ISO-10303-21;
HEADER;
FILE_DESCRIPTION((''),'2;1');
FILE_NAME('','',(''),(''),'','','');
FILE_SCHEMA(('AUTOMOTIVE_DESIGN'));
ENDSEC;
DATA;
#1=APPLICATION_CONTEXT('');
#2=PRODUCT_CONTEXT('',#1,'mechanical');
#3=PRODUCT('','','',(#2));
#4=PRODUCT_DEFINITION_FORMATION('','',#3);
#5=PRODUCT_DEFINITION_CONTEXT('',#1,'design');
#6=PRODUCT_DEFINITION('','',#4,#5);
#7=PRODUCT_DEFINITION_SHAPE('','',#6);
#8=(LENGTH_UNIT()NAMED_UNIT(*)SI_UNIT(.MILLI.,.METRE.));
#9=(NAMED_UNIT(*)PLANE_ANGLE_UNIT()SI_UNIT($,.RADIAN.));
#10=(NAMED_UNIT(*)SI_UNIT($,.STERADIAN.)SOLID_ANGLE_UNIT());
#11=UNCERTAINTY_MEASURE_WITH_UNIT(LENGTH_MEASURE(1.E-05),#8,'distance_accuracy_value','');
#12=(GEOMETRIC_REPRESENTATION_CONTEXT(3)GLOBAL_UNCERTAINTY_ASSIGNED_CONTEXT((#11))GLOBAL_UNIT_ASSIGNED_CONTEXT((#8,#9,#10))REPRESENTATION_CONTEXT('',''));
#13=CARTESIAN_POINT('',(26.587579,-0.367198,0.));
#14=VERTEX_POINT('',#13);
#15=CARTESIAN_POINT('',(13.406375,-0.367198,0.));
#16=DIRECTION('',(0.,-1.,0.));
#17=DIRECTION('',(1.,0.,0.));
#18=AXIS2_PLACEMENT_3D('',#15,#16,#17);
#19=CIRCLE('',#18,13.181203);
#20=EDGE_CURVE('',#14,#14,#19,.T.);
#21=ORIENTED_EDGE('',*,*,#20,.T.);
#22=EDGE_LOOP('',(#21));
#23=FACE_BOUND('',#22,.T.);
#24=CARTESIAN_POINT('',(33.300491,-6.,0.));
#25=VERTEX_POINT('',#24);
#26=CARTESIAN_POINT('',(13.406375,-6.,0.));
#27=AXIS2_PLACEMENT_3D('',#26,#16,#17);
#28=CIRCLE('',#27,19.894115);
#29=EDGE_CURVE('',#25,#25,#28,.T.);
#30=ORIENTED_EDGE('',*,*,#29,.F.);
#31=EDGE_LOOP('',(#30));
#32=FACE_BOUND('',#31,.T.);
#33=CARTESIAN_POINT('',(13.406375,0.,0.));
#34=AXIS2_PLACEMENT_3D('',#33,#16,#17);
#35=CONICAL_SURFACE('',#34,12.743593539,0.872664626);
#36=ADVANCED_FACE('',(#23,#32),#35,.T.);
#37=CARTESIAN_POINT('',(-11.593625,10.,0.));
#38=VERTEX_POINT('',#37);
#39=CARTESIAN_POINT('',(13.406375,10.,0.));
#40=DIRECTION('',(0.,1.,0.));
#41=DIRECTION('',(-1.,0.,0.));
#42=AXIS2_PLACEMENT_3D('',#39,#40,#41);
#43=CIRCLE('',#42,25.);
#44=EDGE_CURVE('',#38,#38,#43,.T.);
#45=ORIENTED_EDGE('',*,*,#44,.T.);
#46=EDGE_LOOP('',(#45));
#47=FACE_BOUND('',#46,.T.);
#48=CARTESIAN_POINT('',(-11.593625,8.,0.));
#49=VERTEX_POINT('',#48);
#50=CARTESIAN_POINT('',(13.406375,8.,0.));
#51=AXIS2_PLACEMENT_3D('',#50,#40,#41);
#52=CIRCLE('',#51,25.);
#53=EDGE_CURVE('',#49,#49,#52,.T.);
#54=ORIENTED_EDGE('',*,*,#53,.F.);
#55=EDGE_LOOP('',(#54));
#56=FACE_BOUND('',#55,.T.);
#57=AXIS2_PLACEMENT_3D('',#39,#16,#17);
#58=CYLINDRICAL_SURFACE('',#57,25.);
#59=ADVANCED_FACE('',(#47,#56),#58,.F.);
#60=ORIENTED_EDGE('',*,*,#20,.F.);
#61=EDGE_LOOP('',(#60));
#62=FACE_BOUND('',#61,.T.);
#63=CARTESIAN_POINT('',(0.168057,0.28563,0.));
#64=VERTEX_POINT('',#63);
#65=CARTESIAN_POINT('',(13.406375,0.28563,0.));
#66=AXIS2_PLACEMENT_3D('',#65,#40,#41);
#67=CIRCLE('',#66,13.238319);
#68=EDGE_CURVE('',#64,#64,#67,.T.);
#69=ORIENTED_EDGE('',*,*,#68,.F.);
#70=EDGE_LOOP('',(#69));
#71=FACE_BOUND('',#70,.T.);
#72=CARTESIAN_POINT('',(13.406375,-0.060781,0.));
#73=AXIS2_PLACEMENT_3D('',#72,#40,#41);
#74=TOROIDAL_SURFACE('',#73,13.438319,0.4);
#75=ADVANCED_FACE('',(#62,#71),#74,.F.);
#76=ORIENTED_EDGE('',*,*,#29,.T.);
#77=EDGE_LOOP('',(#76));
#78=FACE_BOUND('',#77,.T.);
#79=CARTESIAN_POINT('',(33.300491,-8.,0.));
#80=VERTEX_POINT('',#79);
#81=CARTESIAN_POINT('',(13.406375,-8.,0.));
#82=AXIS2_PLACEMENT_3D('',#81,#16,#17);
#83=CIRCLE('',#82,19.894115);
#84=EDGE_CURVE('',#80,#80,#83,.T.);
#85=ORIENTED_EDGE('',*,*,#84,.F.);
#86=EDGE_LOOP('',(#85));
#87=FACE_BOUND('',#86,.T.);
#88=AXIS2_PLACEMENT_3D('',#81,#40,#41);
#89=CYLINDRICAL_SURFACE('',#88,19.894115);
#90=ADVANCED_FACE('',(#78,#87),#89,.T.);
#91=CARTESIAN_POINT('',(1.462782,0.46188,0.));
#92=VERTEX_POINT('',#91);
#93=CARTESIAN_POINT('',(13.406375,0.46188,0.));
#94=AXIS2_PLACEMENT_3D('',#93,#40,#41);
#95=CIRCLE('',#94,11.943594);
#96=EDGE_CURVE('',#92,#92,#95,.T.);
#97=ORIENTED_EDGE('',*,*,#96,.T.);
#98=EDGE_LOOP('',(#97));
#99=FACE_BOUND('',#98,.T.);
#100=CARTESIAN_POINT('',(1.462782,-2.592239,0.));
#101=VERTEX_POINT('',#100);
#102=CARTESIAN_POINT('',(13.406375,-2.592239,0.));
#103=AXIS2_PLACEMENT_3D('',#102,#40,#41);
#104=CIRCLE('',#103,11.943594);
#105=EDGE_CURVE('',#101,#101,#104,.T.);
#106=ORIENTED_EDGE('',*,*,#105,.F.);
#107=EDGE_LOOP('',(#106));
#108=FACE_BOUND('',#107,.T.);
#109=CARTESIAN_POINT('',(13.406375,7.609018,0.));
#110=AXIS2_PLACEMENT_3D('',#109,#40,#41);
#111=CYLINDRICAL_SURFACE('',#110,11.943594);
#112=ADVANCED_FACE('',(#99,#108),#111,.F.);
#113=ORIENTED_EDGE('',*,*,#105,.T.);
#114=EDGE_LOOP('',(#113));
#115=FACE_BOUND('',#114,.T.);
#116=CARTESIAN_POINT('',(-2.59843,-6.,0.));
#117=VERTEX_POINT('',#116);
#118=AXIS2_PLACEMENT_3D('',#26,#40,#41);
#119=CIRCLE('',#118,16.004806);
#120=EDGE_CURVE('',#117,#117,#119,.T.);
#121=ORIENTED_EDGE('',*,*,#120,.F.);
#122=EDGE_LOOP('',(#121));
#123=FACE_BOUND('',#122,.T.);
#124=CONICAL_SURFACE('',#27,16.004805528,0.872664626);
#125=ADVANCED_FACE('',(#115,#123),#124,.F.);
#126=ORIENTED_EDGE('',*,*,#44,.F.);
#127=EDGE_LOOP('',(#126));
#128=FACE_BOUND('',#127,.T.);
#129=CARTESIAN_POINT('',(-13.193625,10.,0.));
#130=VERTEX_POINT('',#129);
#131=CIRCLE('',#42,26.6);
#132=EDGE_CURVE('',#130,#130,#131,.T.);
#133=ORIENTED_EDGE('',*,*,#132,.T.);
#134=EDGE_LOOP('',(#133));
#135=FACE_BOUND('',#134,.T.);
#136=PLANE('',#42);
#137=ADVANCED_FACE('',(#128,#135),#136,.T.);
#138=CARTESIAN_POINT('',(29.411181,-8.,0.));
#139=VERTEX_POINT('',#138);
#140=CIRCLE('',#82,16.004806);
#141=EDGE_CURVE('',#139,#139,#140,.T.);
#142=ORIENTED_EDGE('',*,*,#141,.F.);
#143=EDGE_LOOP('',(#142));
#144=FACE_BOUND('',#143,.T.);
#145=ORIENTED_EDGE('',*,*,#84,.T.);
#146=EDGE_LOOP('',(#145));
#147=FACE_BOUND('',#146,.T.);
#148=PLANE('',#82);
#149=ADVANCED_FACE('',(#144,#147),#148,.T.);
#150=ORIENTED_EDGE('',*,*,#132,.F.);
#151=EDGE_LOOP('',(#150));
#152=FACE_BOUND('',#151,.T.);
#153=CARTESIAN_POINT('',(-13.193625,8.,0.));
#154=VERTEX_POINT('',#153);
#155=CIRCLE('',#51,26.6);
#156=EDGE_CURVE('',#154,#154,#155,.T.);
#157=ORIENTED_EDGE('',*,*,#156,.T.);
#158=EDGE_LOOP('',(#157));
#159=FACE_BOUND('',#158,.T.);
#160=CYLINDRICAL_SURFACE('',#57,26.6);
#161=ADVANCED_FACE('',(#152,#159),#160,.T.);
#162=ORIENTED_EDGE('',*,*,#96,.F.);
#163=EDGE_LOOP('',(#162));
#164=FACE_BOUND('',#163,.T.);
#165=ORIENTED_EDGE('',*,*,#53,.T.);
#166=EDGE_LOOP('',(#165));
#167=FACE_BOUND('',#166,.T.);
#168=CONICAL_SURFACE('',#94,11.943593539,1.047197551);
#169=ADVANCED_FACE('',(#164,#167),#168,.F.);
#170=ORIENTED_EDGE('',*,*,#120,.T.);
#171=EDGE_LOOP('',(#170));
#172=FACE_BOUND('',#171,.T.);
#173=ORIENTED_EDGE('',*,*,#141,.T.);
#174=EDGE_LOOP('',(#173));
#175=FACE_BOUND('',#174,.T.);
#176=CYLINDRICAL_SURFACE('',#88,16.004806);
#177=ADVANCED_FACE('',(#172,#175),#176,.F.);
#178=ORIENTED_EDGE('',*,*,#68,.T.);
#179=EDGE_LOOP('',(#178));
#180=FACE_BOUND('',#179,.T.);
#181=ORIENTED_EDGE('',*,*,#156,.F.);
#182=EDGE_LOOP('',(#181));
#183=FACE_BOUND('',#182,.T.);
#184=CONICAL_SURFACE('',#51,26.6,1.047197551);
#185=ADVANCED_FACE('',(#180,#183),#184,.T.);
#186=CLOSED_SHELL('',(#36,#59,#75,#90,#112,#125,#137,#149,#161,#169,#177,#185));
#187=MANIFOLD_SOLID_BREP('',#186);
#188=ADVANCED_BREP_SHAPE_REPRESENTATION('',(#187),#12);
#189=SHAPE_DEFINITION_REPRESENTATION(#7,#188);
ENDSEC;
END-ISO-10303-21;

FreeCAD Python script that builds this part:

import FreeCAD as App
import Part
import Sketcher

V = App.Vector
Q = App.Units.Quantity


def edges_at(feature, points):
    """Names of the edges that pass closest to the given points."""
    edges = feature.Shape.Edges
    near = lambda p: min(range(len(edges)), key=lambda i: edges[i].distToShape(Part.Vertex(*p))[0])
    return sorted({f"Edge{near(p) + 1}" for p in points})

doc = App.newDocument("Part")
body = doc.addObject("PartDesign::Body", "Body")

sketch1 = doc.addObject("Sketcher::SketchObject", "Sketch")
body.addObject(sketch1)
sketch1.AttachmentSupport = (doc.XY_Plane, [""])
sketch1.MapMode = "FlatFace"
sketch1.addGeometry(Part.LineSegment(V(-13.193625, 8, 0), V(0.662782, 0, 0)), False)
sketch1.addGeometry(Part.LineSegment(V(0.662782, 0, 0), V(-6.48774, -6, 0)), False)
sketch1.addGeometry(Part.LineSegment(V(-6.48774, -6, 0), V(-2.59843, -6, 0)), False)
sketch1.addGeometry(Part.LineSegment(V(-2.59843, -6, 0), V(1.462782, -2.592239, 0)), False)
sketch1.addGeometry(Part.LineSegment(V(1.462782, -2.592239, 0), V(1.462782, 0.46188, 0)), False)
sketch1.addGeometry(Part.LineSegment(V(1.462782, 0.46188, 0), V(-11.593625, 8, 0)), False)
sketch1.addGeometry(Part.LineSegment(V(-11.593625, 8, 0), V(-13.193625, 8, 0)), False)
sketch1.addGeometry(Part.LineSegment(V(13.406375, 8, 0), V(13.406375, -6, 0)), True)
sketch1.addConstraint(Sketcher.Constraint("Coincident", 0, 2, 1, 1))
sketch1.addConstraint(Sketcher.Constraint("Coincident", 1, 2, 2, 1))
sketch1.addConstraint(Sketcher.Constraint("Coincident", 2, 2, 3, 1))
sketch1.addConstraint(Sketcher.Constraint("Coincident", 3, 2, 4, 1))
sketch1.addConstraint(Sketcher.Constraint("Coincident", 4, 2, 5, 1))
sketch1.addConstraint(Sketcher.Constraint("Coincident", 5, 2, 6, 1))
sketch1.addConstraint(Sketcher.Constraint("Coincident", 6, 2, 0, 1))
sketch1.addConstraint(Sketcher.Constraint("Horizontal", 2))
sketch1.addConstraint(Sketcher.Constraint("Vertical", 4))
sketch1.addConstraint(Sketcher.Constraint("Horizontal", 6))
sketch1.addConstraint(Sketcher.Constraint("Vertical", 7))
sketch1.addConstraint(Sketcher.Constraint("PointOnObject", 0, 2, -1))
sketch1.addConstraint(Sketcher.Constraint("Parallel", 1, 3))
sketch1.addConstraint(Sketcher.Constraint("Parallel", 0, 5))
sketch1.addConstraint(Sketcher.Constraint("Horizontal", 6, 2, 7, 1))
sketch1.addConstraint(Sketcher.Constraint("Horizontal", 2, 2, 7, 2))
sketch1.addConstraint(Sketcher.Constraint("DistanceY", 7, 2, 7, 1, Q("14 mm")))
sketch1.addConstraint(Sketcher.Constraint("Angle", 0, Q("-30 deg")))
sketch1.addConstraint(Sketcher.Constraint("Angle", 1, Q("-140 deg")))
sketch1.addConstraint(Sketcher.Constraint("Distance", 0, Q("16 mm")))
sketch1.addConstraint(Sketcher.Constraint("DistanceX", 6, 2, 6, 1, Q("1.6 mm")))
sketch1.addConstraint(Sketcher.Constraint("DistanceX", 0, 2, 3, 2, Q("0.8 mm")))
sketch1.addConstraint(Sketcher.Constraint("DistanceX", 2, 1, 2, 2, Q("3.88931 mm")))
sketch1.addConstraint(Sketcher.Constraint("DistanceX", -1, 1, 0, 2, Q("0.662782 mm")))
sketch1.addConstraint(Sketcher.Constraint("DistanceX", -1, 1, 7, 1, Q("13.406375 mm")))
revolution = doc.addObject("PartDesign::Revolution", "Revolution")
body.addObject(revolution)
revolution.Profile = sketch1
revolution.ReferenceAxis = (sketch1, ["Axis0"])
revolution.Angle = 360
doc.recompute()

fillet = doc.addObject("PartDesign::Fillet", "Fillet")
body.addObject(fillet)
fillet.Base = (revolution, edges_at(revolution, [(26.15, 0, 0)]))
fillet.Radius = 0.4

sketch2 = doc.addObject("Sketcher::SketchObject", "Sketch001")
body.addObject(sketch2)
sketch2.AttachmentSupport = (doc.XZ_Plane, [""])
sketch2.MapMode = "FlatFace"
sketch2.AttachmentOffset = App.Placement(V(0, 0, -8), App.Rotation())
sketch2.addGeometry(Part.Circle(V(13.406375, 0, 0), V(0, 0, 1), 26.6), False)
sketch2.addGeometry(Part.Circle(V(13.406375, 0, 0), V(0, 0, 1), 25), False)
sketch2.addConstraint(Sketcher.Constraint("Coincident", 1, 3, 0, 3))
sketch2.addConstraint(Sketcher.Constraint("PointOnObject", 0, 3, -1))
sketch2.addConstraint(Sketcher.Constraint("Diameter", 1, Q("50 mm")))
sketch2.addConstraint(Sketcher.Constraint("Diameter", 0, Q("53.2 mm")))
sketch2.addConstraint(Sketcher.Constraint("DistanceX", -1, 1, 0, 3, Q("13.406375 mm")))
pad1 = doc.addObject("PartDesign::Pad", "Pad")
body.addObject(pad1)
pad1.Profile = sketch2
pad1.Length = 2
pad1.Reversed = True

sketch3 = doc.addObject("Sketcher::SketchObject", "Sketch002")
body.addObject(sketch3)
sketch3.AttachmentSupport = (doc.XZ_Plane, [""])
sketch3.MapMode = "FlatFace"
sketch3.AttachmentOffset = App.Placement(V(0, 0, 6), App.Rotation())
sketch3.addGeometry(Part.Circle(V(13.406375, 0, 0), V(0, 0, 1), 19.894115), False)
sketch3.addGeometry(Part.Circle(V(13.406375, 0, 0), V(0, 0, 1), 16.004806), False)
sketch3.addConstraint(Sketcher.Constraint("Coincident", 1, 3, 0, 3))
sketch3.addConstraint(Sketcher.Constraint("PointOnObject", 0, 3, -1))
sketch3.addConstraint(Sketcher.Constraint("Diameter", 0, Q("39.78823 mm")))
sketch3.addConstraint(Sketcher.Constraint("Diameter", 1, Q("32.009611 mm")))
sketch3.addConstraint(Sketcher.Constraint("DistanceX", -1, 1, 0, 3, Q("13.406375 mm")))
pad2 = doc.addObject("PartDesign::Pad", "Pad001")
body.addObject(pad2)
pad2.Profile = sketch3
pad2.Length = 2

doc.recompute()
